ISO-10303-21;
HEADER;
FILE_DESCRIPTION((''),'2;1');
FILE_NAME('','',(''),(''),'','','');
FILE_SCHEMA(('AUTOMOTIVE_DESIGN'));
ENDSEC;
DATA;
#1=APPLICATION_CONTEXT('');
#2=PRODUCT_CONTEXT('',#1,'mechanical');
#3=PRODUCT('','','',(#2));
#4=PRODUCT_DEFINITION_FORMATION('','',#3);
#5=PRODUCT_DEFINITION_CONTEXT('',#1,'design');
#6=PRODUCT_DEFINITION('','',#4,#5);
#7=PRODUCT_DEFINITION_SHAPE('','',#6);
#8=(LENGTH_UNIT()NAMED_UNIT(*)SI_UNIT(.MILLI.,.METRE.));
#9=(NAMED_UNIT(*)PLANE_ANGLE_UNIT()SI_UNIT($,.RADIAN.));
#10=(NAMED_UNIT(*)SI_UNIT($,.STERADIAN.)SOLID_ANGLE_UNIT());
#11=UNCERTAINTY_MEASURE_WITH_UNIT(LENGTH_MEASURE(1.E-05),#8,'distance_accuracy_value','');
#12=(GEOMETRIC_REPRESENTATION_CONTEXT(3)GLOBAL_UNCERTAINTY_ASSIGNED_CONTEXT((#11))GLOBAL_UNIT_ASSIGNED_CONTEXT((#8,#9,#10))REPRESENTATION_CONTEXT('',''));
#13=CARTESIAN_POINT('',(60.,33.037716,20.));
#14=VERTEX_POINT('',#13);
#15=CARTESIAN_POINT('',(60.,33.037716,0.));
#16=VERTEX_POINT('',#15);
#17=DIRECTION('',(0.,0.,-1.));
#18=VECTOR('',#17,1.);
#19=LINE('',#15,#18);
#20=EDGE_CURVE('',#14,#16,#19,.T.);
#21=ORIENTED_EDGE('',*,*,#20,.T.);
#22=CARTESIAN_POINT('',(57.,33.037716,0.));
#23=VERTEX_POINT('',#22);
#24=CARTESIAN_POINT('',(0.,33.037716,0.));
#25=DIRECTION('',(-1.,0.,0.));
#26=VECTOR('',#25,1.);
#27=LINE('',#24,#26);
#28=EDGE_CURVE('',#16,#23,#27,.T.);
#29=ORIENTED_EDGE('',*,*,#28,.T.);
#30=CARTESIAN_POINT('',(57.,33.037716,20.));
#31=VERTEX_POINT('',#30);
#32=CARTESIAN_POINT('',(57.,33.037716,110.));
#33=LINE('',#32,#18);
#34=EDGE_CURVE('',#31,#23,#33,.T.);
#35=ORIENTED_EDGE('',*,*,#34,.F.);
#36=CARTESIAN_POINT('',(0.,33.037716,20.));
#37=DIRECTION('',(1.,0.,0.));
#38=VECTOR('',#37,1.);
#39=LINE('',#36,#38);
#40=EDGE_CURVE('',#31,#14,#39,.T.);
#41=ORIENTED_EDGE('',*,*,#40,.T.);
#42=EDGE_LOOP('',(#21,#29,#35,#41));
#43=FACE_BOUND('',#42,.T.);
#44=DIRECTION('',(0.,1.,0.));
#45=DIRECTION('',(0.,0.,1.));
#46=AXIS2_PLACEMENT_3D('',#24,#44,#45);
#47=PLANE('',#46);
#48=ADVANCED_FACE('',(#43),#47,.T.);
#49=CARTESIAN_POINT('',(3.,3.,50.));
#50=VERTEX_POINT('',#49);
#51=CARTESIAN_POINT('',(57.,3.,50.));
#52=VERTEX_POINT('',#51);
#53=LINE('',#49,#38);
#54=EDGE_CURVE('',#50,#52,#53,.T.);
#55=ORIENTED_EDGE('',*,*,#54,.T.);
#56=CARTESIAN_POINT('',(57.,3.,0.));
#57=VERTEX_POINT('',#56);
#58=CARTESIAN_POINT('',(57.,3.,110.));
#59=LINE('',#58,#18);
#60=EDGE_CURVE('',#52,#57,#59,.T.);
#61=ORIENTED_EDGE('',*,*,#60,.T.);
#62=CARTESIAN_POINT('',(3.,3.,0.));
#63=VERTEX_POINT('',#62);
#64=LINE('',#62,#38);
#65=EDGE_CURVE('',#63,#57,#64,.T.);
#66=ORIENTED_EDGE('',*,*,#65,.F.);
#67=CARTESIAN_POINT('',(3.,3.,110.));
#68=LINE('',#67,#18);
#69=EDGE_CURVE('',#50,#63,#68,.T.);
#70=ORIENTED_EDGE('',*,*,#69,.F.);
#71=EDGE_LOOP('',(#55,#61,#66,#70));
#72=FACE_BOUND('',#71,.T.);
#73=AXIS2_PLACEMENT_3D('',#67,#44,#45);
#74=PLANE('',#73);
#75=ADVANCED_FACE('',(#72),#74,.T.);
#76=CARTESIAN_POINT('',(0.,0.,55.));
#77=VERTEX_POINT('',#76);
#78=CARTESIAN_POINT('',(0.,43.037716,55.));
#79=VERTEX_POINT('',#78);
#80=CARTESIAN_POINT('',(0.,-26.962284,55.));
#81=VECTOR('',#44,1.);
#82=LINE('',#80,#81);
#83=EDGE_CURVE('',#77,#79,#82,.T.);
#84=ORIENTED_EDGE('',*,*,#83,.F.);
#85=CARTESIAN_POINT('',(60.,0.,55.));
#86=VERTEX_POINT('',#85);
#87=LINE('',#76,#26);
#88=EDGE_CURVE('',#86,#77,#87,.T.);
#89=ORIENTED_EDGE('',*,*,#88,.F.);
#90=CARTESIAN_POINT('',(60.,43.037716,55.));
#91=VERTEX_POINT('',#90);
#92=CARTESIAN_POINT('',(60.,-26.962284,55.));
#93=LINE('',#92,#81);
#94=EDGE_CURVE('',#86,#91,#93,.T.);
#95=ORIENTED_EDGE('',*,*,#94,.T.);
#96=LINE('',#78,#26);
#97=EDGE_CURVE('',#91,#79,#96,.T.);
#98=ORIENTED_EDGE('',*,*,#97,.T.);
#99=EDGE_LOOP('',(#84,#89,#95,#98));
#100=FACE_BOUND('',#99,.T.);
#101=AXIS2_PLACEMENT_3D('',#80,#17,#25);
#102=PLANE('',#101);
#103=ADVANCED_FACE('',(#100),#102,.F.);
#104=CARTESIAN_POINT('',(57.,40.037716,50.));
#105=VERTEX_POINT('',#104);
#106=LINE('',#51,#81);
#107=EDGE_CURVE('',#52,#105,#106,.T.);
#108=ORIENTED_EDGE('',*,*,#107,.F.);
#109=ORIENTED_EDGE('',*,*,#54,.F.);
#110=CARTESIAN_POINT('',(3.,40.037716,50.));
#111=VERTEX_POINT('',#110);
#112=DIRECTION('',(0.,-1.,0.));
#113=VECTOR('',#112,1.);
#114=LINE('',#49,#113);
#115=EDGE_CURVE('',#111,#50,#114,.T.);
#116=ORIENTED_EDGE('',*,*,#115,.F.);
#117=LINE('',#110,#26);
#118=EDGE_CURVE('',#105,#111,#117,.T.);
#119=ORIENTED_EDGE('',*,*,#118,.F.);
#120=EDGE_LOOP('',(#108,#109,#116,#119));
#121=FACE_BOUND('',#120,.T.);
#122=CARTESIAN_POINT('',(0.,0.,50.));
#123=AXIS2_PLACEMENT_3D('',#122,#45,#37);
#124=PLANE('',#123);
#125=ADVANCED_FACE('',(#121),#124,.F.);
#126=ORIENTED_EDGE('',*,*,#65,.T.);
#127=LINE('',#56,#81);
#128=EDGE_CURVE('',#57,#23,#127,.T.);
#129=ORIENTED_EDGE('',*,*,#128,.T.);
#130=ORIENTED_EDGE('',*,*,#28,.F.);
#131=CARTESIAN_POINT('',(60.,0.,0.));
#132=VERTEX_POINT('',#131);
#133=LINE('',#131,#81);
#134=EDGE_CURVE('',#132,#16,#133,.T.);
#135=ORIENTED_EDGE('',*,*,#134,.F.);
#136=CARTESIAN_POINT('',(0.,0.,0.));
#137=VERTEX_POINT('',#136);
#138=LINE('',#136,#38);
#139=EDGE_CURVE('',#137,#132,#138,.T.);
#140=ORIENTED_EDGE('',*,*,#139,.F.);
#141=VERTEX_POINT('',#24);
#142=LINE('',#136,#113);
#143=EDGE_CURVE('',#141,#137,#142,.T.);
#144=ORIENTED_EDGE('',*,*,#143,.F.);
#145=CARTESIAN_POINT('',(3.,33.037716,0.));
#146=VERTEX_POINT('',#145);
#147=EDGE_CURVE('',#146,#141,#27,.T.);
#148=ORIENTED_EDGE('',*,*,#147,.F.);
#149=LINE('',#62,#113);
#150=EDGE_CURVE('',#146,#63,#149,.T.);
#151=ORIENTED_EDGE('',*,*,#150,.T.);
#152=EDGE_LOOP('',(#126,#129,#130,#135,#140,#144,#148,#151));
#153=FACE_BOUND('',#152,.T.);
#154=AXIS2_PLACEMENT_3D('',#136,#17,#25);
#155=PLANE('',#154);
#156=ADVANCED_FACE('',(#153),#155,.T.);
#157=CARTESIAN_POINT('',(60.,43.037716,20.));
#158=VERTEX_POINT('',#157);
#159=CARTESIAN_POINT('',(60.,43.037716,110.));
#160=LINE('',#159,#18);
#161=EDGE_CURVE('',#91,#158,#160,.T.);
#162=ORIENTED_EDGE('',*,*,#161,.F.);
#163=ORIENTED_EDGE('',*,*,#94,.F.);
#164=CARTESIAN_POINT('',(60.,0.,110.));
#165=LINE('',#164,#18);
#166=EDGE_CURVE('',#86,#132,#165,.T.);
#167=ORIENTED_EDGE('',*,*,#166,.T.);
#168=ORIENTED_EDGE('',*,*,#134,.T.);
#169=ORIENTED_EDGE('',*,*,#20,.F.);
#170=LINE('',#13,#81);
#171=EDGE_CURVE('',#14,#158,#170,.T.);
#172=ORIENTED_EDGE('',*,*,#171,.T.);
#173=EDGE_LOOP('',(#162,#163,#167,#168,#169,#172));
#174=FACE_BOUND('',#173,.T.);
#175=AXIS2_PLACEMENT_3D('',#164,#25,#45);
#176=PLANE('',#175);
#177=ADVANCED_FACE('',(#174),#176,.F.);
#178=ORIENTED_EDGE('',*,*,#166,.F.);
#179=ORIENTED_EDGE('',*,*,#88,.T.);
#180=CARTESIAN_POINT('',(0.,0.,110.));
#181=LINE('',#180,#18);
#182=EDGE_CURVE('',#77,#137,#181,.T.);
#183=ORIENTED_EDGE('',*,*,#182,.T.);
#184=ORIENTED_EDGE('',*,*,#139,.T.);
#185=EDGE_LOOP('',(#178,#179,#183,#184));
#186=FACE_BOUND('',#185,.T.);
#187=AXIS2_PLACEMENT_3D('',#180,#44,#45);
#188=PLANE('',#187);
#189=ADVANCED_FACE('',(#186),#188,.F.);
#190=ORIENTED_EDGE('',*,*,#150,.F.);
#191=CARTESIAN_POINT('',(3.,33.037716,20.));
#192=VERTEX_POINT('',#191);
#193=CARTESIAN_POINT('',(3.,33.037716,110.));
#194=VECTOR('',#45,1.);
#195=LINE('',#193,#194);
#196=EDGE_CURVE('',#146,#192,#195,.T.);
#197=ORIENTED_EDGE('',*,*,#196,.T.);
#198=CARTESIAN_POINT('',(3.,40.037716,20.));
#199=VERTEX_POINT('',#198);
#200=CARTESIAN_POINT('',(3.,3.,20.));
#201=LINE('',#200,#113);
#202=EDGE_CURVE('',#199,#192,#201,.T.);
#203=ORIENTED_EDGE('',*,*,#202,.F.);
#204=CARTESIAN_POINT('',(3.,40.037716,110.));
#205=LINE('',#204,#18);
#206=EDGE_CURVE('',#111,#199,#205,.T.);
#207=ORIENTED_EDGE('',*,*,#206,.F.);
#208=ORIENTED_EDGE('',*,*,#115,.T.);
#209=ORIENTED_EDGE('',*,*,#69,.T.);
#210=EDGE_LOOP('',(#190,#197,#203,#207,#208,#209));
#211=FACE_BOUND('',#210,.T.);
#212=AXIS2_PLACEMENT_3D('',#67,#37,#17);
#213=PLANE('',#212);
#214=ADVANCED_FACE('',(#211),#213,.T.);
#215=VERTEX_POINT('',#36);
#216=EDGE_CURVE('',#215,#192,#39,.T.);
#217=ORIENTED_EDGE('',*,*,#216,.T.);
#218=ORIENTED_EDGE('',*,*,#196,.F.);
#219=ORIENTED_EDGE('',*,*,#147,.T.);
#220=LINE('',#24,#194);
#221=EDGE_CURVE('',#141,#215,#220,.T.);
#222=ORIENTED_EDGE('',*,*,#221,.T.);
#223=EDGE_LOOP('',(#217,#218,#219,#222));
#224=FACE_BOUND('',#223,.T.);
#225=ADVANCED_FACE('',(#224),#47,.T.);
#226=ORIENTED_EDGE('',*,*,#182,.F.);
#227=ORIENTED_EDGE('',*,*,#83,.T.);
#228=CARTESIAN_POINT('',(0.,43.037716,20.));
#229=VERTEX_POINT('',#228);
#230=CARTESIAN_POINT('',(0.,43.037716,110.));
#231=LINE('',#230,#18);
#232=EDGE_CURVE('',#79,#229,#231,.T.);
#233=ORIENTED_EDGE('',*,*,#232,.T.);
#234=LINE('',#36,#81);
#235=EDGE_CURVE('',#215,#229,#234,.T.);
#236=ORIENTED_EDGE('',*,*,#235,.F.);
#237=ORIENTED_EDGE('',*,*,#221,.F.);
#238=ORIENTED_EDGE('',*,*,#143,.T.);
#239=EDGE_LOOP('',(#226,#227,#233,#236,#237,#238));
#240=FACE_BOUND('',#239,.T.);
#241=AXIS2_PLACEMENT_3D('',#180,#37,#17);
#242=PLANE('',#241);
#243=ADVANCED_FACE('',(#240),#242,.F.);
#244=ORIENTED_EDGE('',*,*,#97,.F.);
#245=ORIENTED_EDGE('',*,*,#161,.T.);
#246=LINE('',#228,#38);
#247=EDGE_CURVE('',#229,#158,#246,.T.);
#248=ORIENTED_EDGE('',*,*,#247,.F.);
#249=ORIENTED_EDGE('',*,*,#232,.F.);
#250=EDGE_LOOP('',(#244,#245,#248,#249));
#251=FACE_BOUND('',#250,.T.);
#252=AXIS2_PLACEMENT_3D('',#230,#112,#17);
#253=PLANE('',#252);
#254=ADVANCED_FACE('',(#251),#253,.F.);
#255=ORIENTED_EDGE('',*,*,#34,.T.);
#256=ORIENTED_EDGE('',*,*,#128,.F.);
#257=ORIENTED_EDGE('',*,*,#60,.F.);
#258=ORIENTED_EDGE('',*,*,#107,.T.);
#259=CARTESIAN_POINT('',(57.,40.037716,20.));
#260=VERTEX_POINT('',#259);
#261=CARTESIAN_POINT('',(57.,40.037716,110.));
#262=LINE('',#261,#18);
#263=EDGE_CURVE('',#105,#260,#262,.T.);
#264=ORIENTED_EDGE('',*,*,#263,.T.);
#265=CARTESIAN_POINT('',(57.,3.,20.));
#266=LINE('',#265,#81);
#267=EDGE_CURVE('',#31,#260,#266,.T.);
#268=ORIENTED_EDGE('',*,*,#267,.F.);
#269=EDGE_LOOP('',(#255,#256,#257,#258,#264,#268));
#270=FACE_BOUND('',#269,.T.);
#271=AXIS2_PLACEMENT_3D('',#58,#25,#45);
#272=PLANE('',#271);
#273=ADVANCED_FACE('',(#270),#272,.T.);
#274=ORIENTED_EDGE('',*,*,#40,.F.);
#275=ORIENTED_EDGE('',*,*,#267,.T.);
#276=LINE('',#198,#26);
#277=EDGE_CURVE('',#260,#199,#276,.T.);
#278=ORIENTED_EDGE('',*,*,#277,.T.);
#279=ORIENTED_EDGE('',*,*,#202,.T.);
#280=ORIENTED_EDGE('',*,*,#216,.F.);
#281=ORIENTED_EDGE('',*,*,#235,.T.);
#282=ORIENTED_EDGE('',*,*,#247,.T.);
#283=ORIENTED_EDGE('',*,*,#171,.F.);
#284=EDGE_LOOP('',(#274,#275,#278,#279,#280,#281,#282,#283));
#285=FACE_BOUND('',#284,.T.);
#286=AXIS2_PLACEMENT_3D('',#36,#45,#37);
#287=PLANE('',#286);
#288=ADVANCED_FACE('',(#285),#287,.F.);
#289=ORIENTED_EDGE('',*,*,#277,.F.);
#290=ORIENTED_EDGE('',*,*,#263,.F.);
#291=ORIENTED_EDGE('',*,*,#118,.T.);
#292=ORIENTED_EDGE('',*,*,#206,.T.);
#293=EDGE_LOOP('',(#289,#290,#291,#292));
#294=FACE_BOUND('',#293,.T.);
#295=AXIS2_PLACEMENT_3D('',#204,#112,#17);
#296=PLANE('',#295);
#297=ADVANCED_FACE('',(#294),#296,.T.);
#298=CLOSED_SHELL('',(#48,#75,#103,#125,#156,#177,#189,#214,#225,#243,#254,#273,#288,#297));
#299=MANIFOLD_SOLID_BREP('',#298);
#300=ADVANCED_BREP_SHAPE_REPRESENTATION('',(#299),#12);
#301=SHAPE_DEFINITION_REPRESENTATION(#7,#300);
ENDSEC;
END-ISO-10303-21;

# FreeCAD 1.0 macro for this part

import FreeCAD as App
import Part
import Sketcher

V = App.Vector
Q = App.Units.Quantity

doc = App.newDocument("Part")
params = doc.addObject("Spreadsheet::Sheet", "Params")
for row, (alias, value) in enumerate([
    ("sketch1_width", "60 mm"),
    ("sketch1_width2", "54 mm"),
    ("pad1_length", "110 mm"),
    ("sketch2_width", "60 mm"),
    ("sketch2_height", "20 mm"),
    ("pocket1_length", "10 mm"),
    ("sketch3_width", "60 mm"),
    ("pad2_length", "10 mm"),
    ("sketch4_width", "60 mm"),
    ("sketch4_height", "55 mm"),
    ("pocket2_length", "70 mm"),
    ("sketch5_width", "60 mm"),
    ("pad3_length", "5 mm"),
], start=1):
    params.set(f"A{row}", alias)
    params.set(f"B{row}", "=" + value)
    params.setAlias(f"B{row}", alias)

body = doc.addObject("PartDesign::Body", "Body")

sketch1 = doc.addObject("Sketcher::SketchObject", "Sketch")
body.addObject(sketch1)
sketch1.AttachmentSupport = (doc.XY_Plane, [""])
sketch1.MapMode = "FlatFace"
sketch1.addGeometry([
    Part.LineSegment(V(0, 43, 0), V(0, 0, 0)),
    Part.LineSegment(V(0, 0, 0), V(60, 0, 0)),
    Part.LineSegment(V(60, 0, 0), V(60, 43, 0)),
    Part.LineSegment(V(60, 43, 0), V(0, 43, 0)),
    Part.LineSegment(V(57, 3, 0), V(3, 3, 0)),
    Part.LineSegment(V(3, 3, 0), V(3, 40, 0)),
    Part.LineSegment(V(3, 40, 0), V(57, 40, 0)),
    Part.LineSegment(V(57, 40, 0), V(57, 3, 0)),
], False)
sketch1.addConstraint([
    Sketcher.Constraint("Coincident", 0, 2, 1, 1),
    Sketcher.Constraint("Coincident", 1, 2, 2, 1),
    Sketcher.Constraint("Coincident", 2, 2, 3, 1),
    Sketcher.Constraint("Coincident", 3, 2, 0, 1),
    Sketcher.Constraint("Coincident", 4, 2, 5, 1),
    Sketcher.Constraint("Coincident", 5, 2, 6, 1),
    Sketcher.Constraint("Coincident", 6, 2, 7, 1),
    Sketcher.Constraint("Coincident", 7, 2, 4, 1),
    Sketcher.Constraint("Vertical", 0),
    Sketcher.Constraint("Horizontal", 1),
    Sketcher.Constraint("Vertical", 2),
    Sketcher.Constraint("Horizontal", 3),
    Sketcher.Constraint("Horizontal", 4),
    Sketcher.Constraint("Vertical", 5),
    Sketcher.Constraint("Horizontal", 6),
    Sketcher.Constraint("Vertical", 7),
    Sketcher.Constraint("Coincident", 0, 2, -1, 1),
    Sketcher.Constraint("DistanceX", 1, 1, 1, 2, Q("60 mm")),
    Sketcher.Constraint("DistanceX", 4, 2, 4, 1, Q("54 mm")),
    Sketcher.Constraint("DistanceX", -1, 1, 4, 2, Q("3 mm")),
    Sketcher.Constraint("DistanceY", -1, 1, 4, 2, Q("3 mm")),
    Sketcher.Constraint("DistanceY", 5, 2, 3, 2, Q("3 mm")),
    Sketcher.Constraint("DistanceY", 0, 2, 0, 1, Q("43.037716 mm")),
])
sketch1.setExpression("Constraints[17]", "Params.sketch1_width")
sketch1.setExpression("Constraints[18]", "Params.sketch1_width2")
pad1 = doc.addObject("PartDesign::Pad", "Pad")
body.addObject(pad1)
pad1.Profile = sketch1
pad1.setExpression("Length", "Params.pad1_length")

sketch2 = doc.addObject("Sketcher::SketchObject", "Sketch001")
body.addObject(sketch2)
sketch2.AttachmentSupport = (doc.XZ_Plane, [""])
sketch2.MapMode = "FlatFace"
sketch2.AttachmentOffset = App.Placement(V(0, 0, -43.037716), App.Rotation())
sketch2.addGeometry([
    Part.LineSegment(V(0, 0, 0), V(0, 20, 0)),
    Part.LineSegment(V(0, 20, 0), V(60, 20, 0)),
    Part.LineSegment(V(60, 20, 0), V(60, 0, 0)),
    Part.LineSegment(V(60, 0, 0), V(0, 0, 0)),
], False)
sketch2.addConstraint([
    Sketcher.Constraint("Coincident", 0, 2, 1, 1),
    Sketcher.Constraint("Coincident", 1, 2, 2, 1),
    Sketcher.Constraint("Coincident", 2, 2, 3, 1),
    Sketcher.Constraint("Coincident", 3, 2, 0, 1),
    Sketcher.Constraint("Vertical", 0),
    Sketcher.Constraint("Horizontal", 1),
    Sketcher.Constraint("Vertical", 2),
    Sketcher.Constraint("Horizontal", 3),
    Sketcher.Constraint("Coincident", 3, 2, -1, 1),
    Sketcher.Constraint("DistanceX", 1, 1, 1, 2, Q("60 mm")),
    Sketcher.Constraint("DistanceY", 0, 1, 0, 2, Q("20 mm")),
])
sketch2.setExpression("Constraints[9]", "Params.sketch2_width")
sketch2.setExpression("Constraints[10]", "Params.sketch2_height")
pocket1 = doc.addObject("PartDesign::Pocket", "Pocket")
body.addObject(pocket1)
pocket1.Profile = sketch2
pocket1.setExpression("Length", "Params.pocket1_length")
pocket1.Reversed = True

sketch3 = doc.addObject("Sketcher::SketchObject", "Sketch002")
body.addObject(sketch3)
sketch3.AttachmentSupport = (doc.XY_Plane, [""])
sketch3.MapMode = "FlatFace"
sketch3.AttachmentOffset = App.Placement(V(0, 0, 110), App.Rotation())
sketch3.addGeometry([
    Part.LineSegment(V(0, 43, 0), V(0, 0, 0)),
    Part.LineSegment(V(0, 0, 0), V(60, 0, 0)),
    Part.LineSegment(V(60, 0, 0), V(60, 43, 0)),
    Part.LineSegment(V(60, 43, 0), V(0, 43, 0)),
], False)
sketch3.addConstraint([
    Sketcher.Constraint("Coincident", 0, 2, 1, 1),
    Sketcher.Constraint("Coincident", 1, 2, 2, 1),
    Sketcher.Constraint("Coincident", 2, 2, 3, 1),
    Sketcher.Constraint("Coincident", 3, 2, 0, 1),
    Sketcher.Constraint("Vertical", 0),
    Sketcher.Constraint("Horizontal", 1),
    Sketcher.Constraint("Vertical", 2),
    Sketcher.Constraint("Horizontal", 3),
    Sketcher.Constraint("Coincident", 0, 2, -1, 1),
    Sketcher.Constraint("DistanceX", 1, 1, 1, 2, Q("60 mm")),
    Sketcher.Constraint("DistanceY", 0, 2, 0, 1, Q("43.037716 mm")),
])
sketch3.setExpression("Constraints[9]", "Params.sketch3_width")
pad2 = doc.addObject("PartDesign::Pad", "Pad001")
body.addObject(pad2)
pad2.Profile = sketch3
pad2.setExpression("Length", "Params.pad2_length")
pad2.Reversed = True

sketch4 = doc.addObject("Sketcher::SketchObject", "Sketch003")
body.addObject(sketch4)
sketch4.AttachmentSupport = (doc.XZ_Plane, [""])
sketch4.MapMode = "FlatFace"
sketch4.AttachmentOffset = App.Placement(V(0, 0, -43.037716), App.Rotation())
sketch4.addGeometry([
    Part.LineSegment(V(0, 55, 0), V(0, 110, 0)),
    Part.LineSegment(V(0, 110, 0), V(60, 110, 0)),
    Part.LineSegment(V(60, 110, 0), V(60, 55, 0)),
    Part.LineSegment(V(60, 55, 0), V(0, 55, 0)),
], False)
sketch4.addConstraint([
    Sketcher.Constraint("Coincident", 0, 2, 1, 1),
    Sketcher.Constraint("Coincident", 1, 2, 2, 1),
    Sketcher.Constraint("Coincident", 2, 2, 3, 1),
    Sketcher.Constraint("Coincident", 3, 2, 0, 1),
    Sketcher.Constraint("Vertical", 0),
    Sketcher.Constraint("Horizontal", 1),
    Sketcher.Constraint("Vertical", 2),
    Sketcher.Constraint("Horizontal", 3),
    Sketcher.Constraint("PointOnObject", 0, 2, -2),
    Sketcher.Constraint("DistanceX", 1, 1, 1, 2, Q("60 mm")),
    Sketcher.Constraint("DistanceY", 0, 1, 0, 2, Q("55 mm")),
    Sketcher.Constraint("DistanceY", -1, 1, 0, 2, Q("110 mm")),
])
sketch4.setExpression("Constraints[9]", "Params.sketch4_width")
sketch4.setExpression("Constraints[10]", "Params.sketch4_height")
pocket2 = doc.addObject("PartDesign::Pocket", "Pocket001")
body.addObject(pocket2)
pocket2.Profile = sketch4
pocket2.setExpression("Length", "Params.pocket2_length")
pocket2.Reversed = True

sketch5 = doc.addObject("Sketcher::SketchObject", "Sketch004")
body.addObject(sketch5)
sketch5.AttachmentSupport = (doc.XY_Plane, [""])
sketch5.MapMode = "FlatFace"
sketch5.AttachmentOffset = App.Placement(V(0, 0, 55), App.Rotation())
sketch5.addGeometry([
    Part.LineSegment(V(0, 43, 0), V(0, 0, 0)),
    Part.LineSegment(V(0, 0, 0), V(60, 0, 0)),
    Part.LineSegment(V(60, 0, 0), V(60, 43, 0)),
    Part.LineSegment(V(60, 43, 0), V(0, 43, 0)),
], False)
sketch5.addConstraint([
    Sketcher.Constraint("Coincident", 0, 2, 1, 1),
    Sketcher.Constraint("Coincident", 1, 2, 2, 1),
    Sketcher.Constraint("Coincident", 2, 2, 3, 1),
    Sketcher.Constraint("Coincident", 3, 2, 0, 1),
    Sketcher.Constraint("Vertical", 0),
    Sketcher.Constraint("Horizontal", 1),
    Sketcher.Constraint("Vertical", 2),
    Sketcher.Constraint("Horizontal", 3),
    Sketcher.Constraint("Coincident", 0, 2, -1, 1),
    Sketcher.Constraint("DistanceX", 1, 1, 1, 2, Q("60 mm")),
    Sketcher.Constraint("DistanceY", 0, 2, 0, 1, Q("43.037716 mm")),
])
sketch5.setExpression("Constraints[9]", "Params.sketch5_width")
pad3 = doc.addObject("PartDesign::Pad", "Pad002")
body.addObject(pad3)
pad3.Profile = sketch5
pad3.setExpression("Length", "Params.pad3_length")
pad3.Reversed = True

doc.recompute()
